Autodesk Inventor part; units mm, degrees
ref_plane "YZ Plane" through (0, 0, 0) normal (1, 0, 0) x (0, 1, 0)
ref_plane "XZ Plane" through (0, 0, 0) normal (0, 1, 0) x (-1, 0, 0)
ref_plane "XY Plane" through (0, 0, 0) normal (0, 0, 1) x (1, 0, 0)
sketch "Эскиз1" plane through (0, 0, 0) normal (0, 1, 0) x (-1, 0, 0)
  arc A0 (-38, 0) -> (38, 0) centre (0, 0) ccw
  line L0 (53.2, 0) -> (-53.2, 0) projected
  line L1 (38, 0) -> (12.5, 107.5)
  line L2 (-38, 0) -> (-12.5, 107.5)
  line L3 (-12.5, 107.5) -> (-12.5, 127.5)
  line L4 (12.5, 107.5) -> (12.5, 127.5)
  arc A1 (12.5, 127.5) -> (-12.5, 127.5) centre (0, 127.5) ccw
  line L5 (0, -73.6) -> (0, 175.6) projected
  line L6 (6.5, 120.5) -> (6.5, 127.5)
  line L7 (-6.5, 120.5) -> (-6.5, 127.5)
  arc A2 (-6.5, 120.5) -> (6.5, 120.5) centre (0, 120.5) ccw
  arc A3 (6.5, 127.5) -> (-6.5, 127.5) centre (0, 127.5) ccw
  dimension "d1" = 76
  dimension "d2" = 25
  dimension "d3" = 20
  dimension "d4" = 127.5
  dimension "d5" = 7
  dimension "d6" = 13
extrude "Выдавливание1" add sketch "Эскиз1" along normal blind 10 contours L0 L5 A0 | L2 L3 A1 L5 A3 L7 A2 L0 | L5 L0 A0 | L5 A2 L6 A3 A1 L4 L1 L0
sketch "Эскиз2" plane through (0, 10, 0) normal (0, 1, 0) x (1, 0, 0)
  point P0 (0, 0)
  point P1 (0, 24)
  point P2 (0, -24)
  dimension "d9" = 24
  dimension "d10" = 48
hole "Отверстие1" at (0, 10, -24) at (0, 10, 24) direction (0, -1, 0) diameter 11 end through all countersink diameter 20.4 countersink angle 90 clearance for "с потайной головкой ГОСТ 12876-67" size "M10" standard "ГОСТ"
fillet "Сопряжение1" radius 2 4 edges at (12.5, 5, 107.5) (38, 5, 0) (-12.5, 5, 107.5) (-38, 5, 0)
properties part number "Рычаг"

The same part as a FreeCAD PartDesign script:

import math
import FreeCAD as App
import Part
import Sketcher
from FreeCAD import Vector


def edges_at(feature, points):
    """Names of the edges that pass closest to the given points."""
    edges = feature.Shape.Edges
    near = lambda p: min(range(len(edges)), key=lambda i: edges[i].distToShape(Part.Vertex(*p))[0])
    return sorted({f"Edge{near(p) + 1}" for p in points})

doc = App.newDocument("Part")
body = doc.addObject("PartDesign::Body", "Body")

sketch1 = body.newObject("Sketcher::SketchObject", "Sketch")
sketch1.AttachmentSupport = (doc.getObject("XZ_Plane"), [""])
sketch1.MapMode = "FlatFace"
sketch1.addGeometry([
    Part.ArcOfCircle(Part.Circle(Vector(0, 0, 0), Vector(0, 0, 1), 38), math.radians(180), math.radians(360)),
    Part.LineSegment(Vector(-38, 0, 0), Vector(-12, 108, 0)),
    Part.LineSegment(Vector(-12, 108, 0), Vector(-12, 128, 0)),
    Part.ArcOfCircle(Part.Circle(Vector(0, 128, 0), Vector(0, 0, 1), 12), math.radians(0), math.radians(180)),
    Part.LineSegment(Vector(12, 128, 0), Vector(12, 108, 0)),
    Part.LineSegment(Vector(12, 108, 0), Vector(38, 0, 0)),
    Part.ArcOfCircle(Part.Circle(Vector(0, 128, 0), Vector(0, 0, 1), 6), math.radians(0), math.radians(180)),
    Part.LineSegment(Vector(-6, 128, 0), Vector(-6, 120, 0)),
    Part.ArcOfCircle(Part.Circle(Vector(0, 120, 0), Vector(0, 0, 1), 6), math.radians(180), math.radians(360)),
    Part.LineSegment(Vector(6, 120, 0), Vector(6, 128, 0)),
], False)
sketch1.addConstraint([
    Sketcher.Constraint("Coincident", 0, 1, 1, 1),
    Sketcher.Constraint("Coincident", 1, 2, 2, 1),
    Sketcher.Constraint("Tangent", 2, 2, 3, 2),
    Sketcher.Constraint("Tangent", 3, 1, 4, 1),
    Sketcher.Constraint("Coincident", 4, 2, 5, 1),
    Sketcher.Constraint("Coincident", 5, 2, 0, 2),
    Sketcher.Constraint("Tangent", 6, 2, 7, 1),
    Sketcher.Constraint("Tangent", 7, 2, 8, 1),
    Sketcher.Constraint("Tangent", 8, 2, 9, 1),
    Sketcher.Constraint("Tangent", 9, 2, 6, 1),
    Sketcher.Constraint("Vertical", 2),
    Sketcher.Constraint("Vertical", 4),
    Sketcher.Constraint("Vertical", 7),
    Sketcher.Constraint("Vertical", 9),
    Sketcher.Constraint("Coincident", 0, 3, -1, 1),
    Sketcher.Constraint("Coincident", 6, 3, 3, 3),
    Sketcher.Constraint("Symmetric", 1, 2, 4, 2, -2),
    Sketcher.Constraint("PointOnObject", 0, 1, -1),
    Sketcher.Constraint("PointOnObject", 5, 2, -1),
    Sketcher.Constraint("Radius", 0, 38.0),
    Sketcher.Constraint("Radius", 3, 12.5),
    Sketcher.Constraint("Radius", 6, 6.5),
    Sketcher.Constraint("DistanceY", 2, 1, 2, 2, 20.0),
    Sketcher.Constraint("DistanceY", 7, 2, 7, 1, 7.0),
    Sketcher.Constraint("DistanceY", -1, 1, 3, 3, 127.5),
])
pad1 = body.newObject("PartDesign::Pad", "Pad")
pad1.Profile = sketch1
pad1.Length = 10
pad1.Reversed = True

sketch2 = body.newObject("Sketcher::SketchObject", "Sketch001")
sketch2.AttachmentSupport = (doc.getObject("XZ_Plane"), [""])
sketch2.MapMode = "FlatFace"
sketch2.AttachmentOffset = App.Placement(Vector(0, 0, -10), App.Rotation())
sketch2.addGeometry([
    Part.Circle(Vector(0, -24, 0), Vector(0, 0, 1), 6),
    Part.Circle(Vector(0, 24, 0), Vector(0, 0, 1), 6),
], False)
sketch2.addConstraint([
    Sketcher.Constraint("Equal", 0, 1),
    Sketcher.Constraint("Symmetric", 0, 3, 1, 3, -1, 1),
    Sketcher.Constraint("PointOnObject", 0, 3, -2),
    Sketcher.Constraint("Diameter", 0, 11.0),
    Sketcher.Constraint("DistanceY", 0, 3, -1, 1, 24.0),
])
doc.recompute()
hole = body.newObject("PartDesign::Hole", "Hole")
hole.Profile = sketch2
hole.ThreadType = "None"
hole.Diameter = 11
hole.DepthType = "ThroughAll"
hole.HoleCutType = "Countersink"
hole.HoleCutDiameter = 20.4
hole.HoleCutCountersinkAngle = 90
hole.Reversed = True
doc.recompute()

fillet = body.newObject("PartDesign::Fillet", "Fillet")
fillet.Base = (hole, edges_at(hole, [
    (12.5, 5, 107.5),
    (38, 5, 0),
    (-12.5, 5, 107.5),
    (-38, 5, 0),
]))
fillet.Radius = 2

doc.recompute()
